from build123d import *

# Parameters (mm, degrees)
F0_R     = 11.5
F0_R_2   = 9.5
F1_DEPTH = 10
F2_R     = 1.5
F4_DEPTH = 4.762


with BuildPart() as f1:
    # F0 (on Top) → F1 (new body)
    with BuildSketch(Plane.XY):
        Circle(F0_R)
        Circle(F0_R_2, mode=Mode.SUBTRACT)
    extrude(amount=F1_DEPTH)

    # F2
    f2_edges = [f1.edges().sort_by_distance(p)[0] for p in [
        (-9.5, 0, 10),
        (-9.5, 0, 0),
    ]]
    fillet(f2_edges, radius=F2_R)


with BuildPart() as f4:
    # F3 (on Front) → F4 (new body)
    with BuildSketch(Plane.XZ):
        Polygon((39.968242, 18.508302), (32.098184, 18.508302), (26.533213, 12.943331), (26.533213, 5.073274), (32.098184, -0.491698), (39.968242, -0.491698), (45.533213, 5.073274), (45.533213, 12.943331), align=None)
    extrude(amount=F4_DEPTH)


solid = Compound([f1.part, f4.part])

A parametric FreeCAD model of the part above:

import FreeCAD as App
import Part
import Sketcher

V = App.Vector


def edges_at(feature, points):
    """Names of the edges that pass closest to the given points."""
    edges = feature.Shape.Edges
    near = lambda p: min(range(len(edges)), key=lambda i: edges[i].distToShape(Part.Vertex(*p))[0])
    return sorted({f"Edge{near(p) + 1}" for p in points})


def add_polygon(sketch, points):
    """Adds a closed chain of lines whose ends are joined by coincident constraints."""
    first, n = sketch.GeometryCount, len(points)
    for a, b in zip(points, points[1:] + points[:1]):
        sketch.addGeometry(Part.LineSegment(App.Vector(*a, 0), App.Vector(*b, 0)), False)
    for i in range(n):
        sketch.addConstraint(Sketcher.Constraint("Coincident", first + i, 2, first + (i + 1) % n, 1))

doc = App.newDocument("Part")
params = doc.addObject("Spreadsheet::Sheet", "Params")
for row, (alias, value) in enumerate([
    ("sketch1_diameter", "23 mm"),
    ("sketch1_diameter2", "19 mm"),
    ("pad1_length", "10 mm"),
    ("fillet_radius", "1.5 mm"),
    ("pad2_length", "4.762 mm"),
], start=1):
    params.set(f"A{row}", alias)
    params.set(f"B{row}", "=" + value)
    params.setAlias(f"B{row}", alias)

body = doc.addObject("PartDesign::Body", "Body")

# Sketch on XY plane
sketch1 = doc.addObject("Sketcher::SketchObject", "Sketch")
body.addObject(sketch1)
sketch1.AttachmentSupport = (doc.XY_Plane, [""])
sketch1.MapMode = "FlatFace"
sketch1.addGeometry(Part.Circle(V(0, 0, 0), V(0, 0, 1), 12), False)
sketch1.addGeometry(Part.Circle(V(0, 0, 0), V(0, 0, 1), 10), False)
sketch1.addConstraint(Sketcher.Constraint("Coincident", 0, 3, -1, 1))
sketch1.addConstraint(Sketcher.Constraint("Coincident", 1, 3, -1, 1))
sketch1.addConstraint(Sketcher.Constraint("Diameter", 0, 23.0))
sketch1.addConstraint(Sketcher.Constraint("Diameter", 1, 19.0))
sketch1.setExpression("Constraints[2]", "Params.sketch1_diameter")
sketch1.setExpression("Constraints[3]", "Params.sketch1_diameter2")
pad1 = doc.addObject("PartDesign::Pad", "Pad")
body.addObject(pad1)
pad1.Profile = sketch1
pad1.setExpression("Length", "Params.pad1_length")
doc.recompute()

fillet = doc.addObject("PartDesign::Fillet", "Fillet")
body.addObject(fillet)
fillet.Base = (pad1, edges_at(pad1, [(-9.5, 0, 10), (-9.5, 0, 0)]))
fillet.setExpression("Radius", "Params.fillet_radius")
body2 = doc.addObject("PartDesign::Body", "Body001")

# Sketch on XZ plane
sketch2 = doc.addObject("Sketcher::SketchObject", "Sketch001")
body2.addObject(sketch2)
sketch2.AttachmentSupport = (doc.getObject("XZ_Plane001"), [""])
sketch2.MapMode = "FlatFace"
add_polygon(sketch2, [(40, 19), (32, 19), (27, 13), (27, 5), (32, 0), (40, 0), (46, 5), (46, 13)])  # lines 0-7
sketch2.addConstraint(Sketcher.Constraint("Horizontal", 0))
sketch2.addConstraint(Sketcher.Constraint("Vertical", 2))
sketch2.addConstraint(Sketcher.Constraint("Horizontal", 4))
sketch2.addConstraint(Sketcher.Constraint("Vertical", 6))
sketch2.addConstraint(Sketcher.Constraint("Perpendicular", 1, 3))
sketch2.addConstraint(Sketcher.Constraint("Perpendicular", 3, 5))
sketch2.addConstraint(Sketcher.Constraint("Perpendicular", 5, 7))
sketch2.addConstraint(Sketcher.Constraint("Horizontal", 2, 2, 5, 2))
sketch2.addConstraint(Sketcher.Constraint("Horizontal", 1, 2, 6, 2))
sketch2.addConstraint(Sketcher.Constraint("Vertical", 0, 2, 3, 2))
sketch2.addConstraint(Sketcher.Constraint("Vertical", 4, 2, 7, 2))
sketch2.addConstraint(Sketcher.Constraint("Equal", 4, 2))
sketch2.addConstraint(Sketcher.Constraint("DistanceY", 3, 2, 0, 2, 19.0))
sketch2.addConstraint(Sketcher.Constraint("Distance", 3, 7.870058))
sketch2.addConstraint(Sketcher.Constraint("DistanceY", -1, 1, 1, 2, 12.943331))
sketch2.addConstraint(Sketcher.Constraint("DistanceX", -1, 1, 4, 2, 39.968242))
pad2 = doc.addObject("PartDesign::Pad", "Pad001")
body2.addObject(pad2)
pad2.Profile = sketch2
pad2.setExpression("Length", "Params.pad2_length")

doc.recompute()
